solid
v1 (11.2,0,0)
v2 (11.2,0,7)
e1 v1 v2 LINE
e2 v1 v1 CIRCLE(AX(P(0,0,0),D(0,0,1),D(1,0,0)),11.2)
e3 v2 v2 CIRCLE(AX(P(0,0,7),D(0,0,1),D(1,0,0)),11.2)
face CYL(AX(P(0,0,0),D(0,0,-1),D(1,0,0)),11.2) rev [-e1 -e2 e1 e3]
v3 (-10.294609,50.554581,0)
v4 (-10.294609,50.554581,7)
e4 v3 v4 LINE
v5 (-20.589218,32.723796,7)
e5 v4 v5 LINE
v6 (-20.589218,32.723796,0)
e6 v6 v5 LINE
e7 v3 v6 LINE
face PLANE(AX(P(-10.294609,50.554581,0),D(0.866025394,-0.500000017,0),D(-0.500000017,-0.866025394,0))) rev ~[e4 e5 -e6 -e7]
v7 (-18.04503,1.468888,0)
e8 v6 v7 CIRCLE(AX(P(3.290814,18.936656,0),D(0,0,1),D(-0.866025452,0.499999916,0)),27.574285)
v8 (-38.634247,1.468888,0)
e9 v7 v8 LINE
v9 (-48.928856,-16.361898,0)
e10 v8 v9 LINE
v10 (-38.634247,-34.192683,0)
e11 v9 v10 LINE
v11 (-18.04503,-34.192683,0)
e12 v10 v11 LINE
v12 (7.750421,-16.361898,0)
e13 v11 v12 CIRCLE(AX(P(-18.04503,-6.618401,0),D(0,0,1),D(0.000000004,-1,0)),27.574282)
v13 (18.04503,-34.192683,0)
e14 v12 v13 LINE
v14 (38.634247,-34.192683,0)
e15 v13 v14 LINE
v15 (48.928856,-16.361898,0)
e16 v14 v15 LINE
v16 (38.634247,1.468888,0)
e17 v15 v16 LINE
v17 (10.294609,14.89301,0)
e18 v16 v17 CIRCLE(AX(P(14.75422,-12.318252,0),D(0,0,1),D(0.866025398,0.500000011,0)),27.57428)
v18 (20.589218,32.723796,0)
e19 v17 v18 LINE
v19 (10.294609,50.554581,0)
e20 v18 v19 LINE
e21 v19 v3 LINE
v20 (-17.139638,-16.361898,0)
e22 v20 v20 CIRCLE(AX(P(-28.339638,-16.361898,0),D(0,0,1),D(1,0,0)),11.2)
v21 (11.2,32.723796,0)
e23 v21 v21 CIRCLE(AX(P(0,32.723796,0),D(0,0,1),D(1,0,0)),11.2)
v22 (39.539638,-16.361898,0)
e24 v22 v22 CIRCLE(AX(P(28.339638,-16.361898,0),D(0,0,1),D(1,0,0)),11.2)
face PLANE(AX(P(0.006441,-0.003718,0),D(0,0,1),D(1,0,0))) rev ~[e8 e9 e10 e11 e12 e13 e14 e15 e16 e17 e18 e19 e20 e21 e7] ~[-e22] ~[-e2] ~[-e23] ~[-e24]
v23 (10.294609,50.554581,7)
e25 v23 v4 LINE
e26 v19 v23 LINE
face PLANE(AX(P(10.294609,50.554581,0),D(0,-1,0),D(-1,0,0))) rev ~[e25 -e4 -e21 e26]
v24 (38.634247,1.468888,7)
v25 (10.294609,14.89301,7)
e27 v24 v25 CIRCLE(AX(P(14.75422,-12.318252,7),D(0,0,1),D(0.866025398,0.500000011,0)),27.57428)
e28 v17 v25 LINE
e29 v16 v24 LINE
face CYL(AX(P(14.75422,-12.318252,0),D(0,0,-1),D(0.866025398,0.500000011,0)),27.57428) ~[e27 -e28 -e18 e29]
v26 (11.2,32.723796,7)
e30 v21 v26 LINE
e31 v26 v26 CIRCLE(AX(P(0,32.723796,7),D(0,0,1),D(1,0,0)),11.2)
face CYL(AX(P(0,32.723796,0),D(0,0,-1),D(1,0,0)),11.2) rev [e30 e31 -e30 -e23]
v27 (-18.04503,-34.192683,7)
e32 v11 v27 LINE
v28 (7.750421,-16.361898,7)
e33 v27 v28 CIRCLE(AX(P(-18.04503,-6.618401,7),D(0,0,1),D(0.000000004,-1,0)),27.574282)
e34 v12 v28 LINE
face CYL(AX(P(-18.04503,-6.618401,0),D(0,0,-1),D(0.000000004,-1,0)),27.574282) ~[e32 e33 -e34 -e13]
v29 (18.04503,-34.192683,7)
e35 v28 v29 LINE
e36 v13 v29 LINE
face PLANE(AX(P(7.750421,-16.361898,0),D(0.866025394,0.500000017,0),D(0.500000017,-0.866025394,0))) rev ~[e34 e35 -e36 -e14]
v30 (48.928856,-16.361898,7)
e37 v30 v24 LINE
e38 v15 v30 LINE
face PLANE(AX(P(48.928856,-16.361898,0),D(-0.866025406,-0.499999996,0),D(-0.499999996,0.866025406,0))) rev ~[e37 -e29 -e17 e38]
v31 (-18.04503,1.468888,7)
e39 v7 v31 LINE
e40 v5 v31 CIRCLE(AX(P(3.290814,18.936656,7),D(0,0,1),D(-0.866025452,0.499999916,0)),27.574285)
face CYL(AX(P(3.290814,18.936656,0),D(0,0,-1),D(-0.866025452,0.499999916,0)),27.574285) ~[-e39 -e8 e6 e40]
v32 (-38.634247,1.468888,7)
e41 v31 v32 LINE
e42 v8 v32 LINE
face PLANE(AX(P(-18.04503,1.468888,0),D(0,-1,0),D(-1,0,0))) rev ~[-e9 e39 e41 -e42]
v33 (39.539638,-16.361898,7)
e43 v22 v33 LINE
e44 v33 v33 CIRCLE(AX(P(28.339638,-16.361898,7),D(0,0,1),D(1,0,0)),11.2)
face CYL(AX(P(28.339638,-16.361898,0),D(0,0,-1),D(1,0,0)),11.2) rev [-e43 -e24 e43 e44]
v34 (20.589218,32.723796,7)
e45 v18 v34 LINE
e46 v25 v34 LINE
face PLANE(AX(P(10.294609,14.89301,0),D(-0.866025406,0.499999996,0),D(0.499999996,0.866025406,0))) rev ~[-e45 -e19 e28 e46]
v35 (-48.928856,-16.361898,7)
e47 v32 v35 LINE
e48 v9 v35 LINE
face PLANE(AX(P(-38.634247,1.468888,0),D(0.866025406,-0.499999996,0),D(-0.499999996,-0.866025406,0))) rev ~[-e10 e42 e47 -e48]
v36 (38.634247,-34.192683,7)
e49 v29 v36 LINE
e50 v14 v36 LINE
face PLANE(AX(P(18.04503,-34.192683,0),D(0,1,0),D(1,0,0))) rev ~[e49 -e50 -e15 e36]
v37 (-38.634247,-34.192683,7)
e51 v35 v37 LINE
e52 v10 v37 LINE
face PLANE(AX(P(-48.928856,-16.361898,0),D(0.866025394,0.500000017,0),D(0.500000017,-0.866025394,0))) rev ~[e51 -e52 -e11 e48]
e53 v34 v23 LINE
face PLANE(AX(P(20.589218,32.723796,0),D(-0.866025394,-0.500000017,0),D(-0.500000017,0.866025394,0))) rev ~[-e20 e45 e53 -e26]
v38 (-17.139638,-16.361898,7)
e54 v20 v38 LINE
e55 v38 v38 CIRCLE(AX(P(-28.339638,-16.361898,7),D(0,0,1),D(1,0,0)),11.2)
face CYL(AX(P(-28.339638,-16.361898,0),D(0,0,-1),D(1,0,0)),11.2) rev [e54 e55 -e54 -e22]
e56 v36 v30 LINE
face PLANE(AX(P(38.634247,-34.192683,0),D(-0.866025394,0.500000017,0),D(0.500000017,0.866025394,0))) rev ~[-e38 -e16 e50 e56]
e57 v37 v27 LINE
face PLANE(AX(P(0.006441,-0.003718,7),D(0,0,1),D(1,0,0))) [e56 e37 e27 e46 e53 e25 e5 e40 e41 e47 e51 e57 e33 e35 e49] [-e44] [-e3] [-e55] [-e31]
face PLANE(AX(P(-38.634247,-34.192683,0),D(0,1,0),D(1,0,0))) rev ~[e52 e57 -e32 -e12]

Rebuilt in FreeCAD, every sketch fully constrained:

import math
import FreeCAD as App
import Part
import Sketcher

V = App.Vector
Q = App.Units.Quantity

doc = App.newDocument("Part")
params = doc.addObject("Spreadsheet::Sheet", "Params")
for row, (alias, value) in enumerate([
    ("sketch1_diameter", "22.4 mm"),
    ("pad1_length", "7 mm"),
], start=1):
    params.set(f"A{row}", alias)
    params.set(f"B{row}", "=" + value)
    params.setAlias(f"B{row}", alias)

body = doc.addObject("PartDesign::Body", "Body")

# Sketch on XY plane
sketch1 = body.newObject("Sketcher::SketchObject", "Sketch")
sketch1.AttachmentSupport = (doc.getObject("XY_Plane"), [""])
sketch1.MapMode = "FlatFace"
sketch1.addGeometry([
    Part.ArcOfCircle(Part.Circle(V(-18, -7, 0), V(0, 0, 1), 28), math.radians(-90), math.radians(-21)),  # 0
    Part.LineSegment(V(8, -16, 0), V(18, -34, 0)),  # 1
    Part.LineSegment(V(18, -34, 0), V(39, -34, 0)),  # 2
    Part.LineSegment(V(39, -34, 0), V(49, -16, 0)),  # 3
    Part.LineSegment(V(49, -16, 0), V(39, 1, 0)),  # 4
    Part.ArcOfCircle(Part.Circle(V(15, -12, 0), V(0, 0, 1), 28), math.radians(30), math.radians(99)),  # 5
    Part.LineSegment(V(10, 15, 0), V(21, 33, 0)),  # 6
    Part.LineSegment(V(21, 33, 0), V(10, 51, 0)),  # 7
    Part.LineSegment(V(10, 51, 0), V(-10, 51, 0)),  # 8
    Part.LineSegment(V(-10, 51, 0), V(-21, 33, 0)),  # 9
    Part.ArcOfCircle(Part.Circle(V(3, 19, 0), V(0, 0, 1), 28), math.radians(150), math.radians(219)),  # 10
    Part.LineSegment(V(-18, 1, 0), V(-39, 1, 0)),  # 11
    Part.LineSegment(V(-39, 1, 0), V(-49, -16, 0)),  # 12
    Part.LineSegment(V(-49, -16, 0), V(-39, -34, 0)),  # 13
    Part.LineSegment(V(-39, -34, 0), V(-18, -34, 0)),  # 14
    Part.Circle(V(-28, -16, 0), V(0, 0, 1), 11),  # 15
    Part.Circle(V(28, -16, 0), V(0, 0, 1), 11),  # 16
    Part.Circle(V(0, 0, 0), V(0, 0, 1), 11),  # 17
    Part.Circle(V(0, 33, 0), V(0, 0, 1), 11),  # 18
], False)
sketch1.addConstraint([
    Sketcher.Constraint("Coincident", 0, 2, 1, 1),
    Sketcher.Constraint("Coincident", 1, 2, 2, 1),
    Sketcher.Constraint("Coincident", 2, 2, 3, 1),
    Sketcher.Constraint("Coincident", 3, 2, 4, 1),
    Sketcher.Constraint("Tangent", 4, 2, 5, 1),
    Sketcher.Constraint("Coincident", 5, 2, 6, 1),
    Sketcher.Constraint("Coincident", 6, 2, 7, 1),
    Sketcher.Constraint("Coincident", 7, 2, 8, 1),
    Sketcher.Constraint("Coincident", 8, 2, 9, 1),
    Sketcher.Constraint("Tangent", 9, 2, 10, 1),
    Sketcher.Constraint("Coincident", 10, 2, 11, 1),
    Sketcher.Constraint("Coincident", 11, 2, 12, 1),
    Sketcher.Constraint("Coincident", 12, 2, 13, 1),
    Sketcher.Constraint("Coincident", 13, 2, 14, 1),
    Sketcher.Constraint("Tangent", 14, 2, 0, 1),
    Sketcher.Constraint("Horizontal", 2),
    Sketcher.Constraint("Horizontal", 8),
    Sketcher.Constraint("Horizontal", 11),
    Sketcher.Constraint("Horizontal", 14),
    Sketcher.Constraint("Coincident", 17, 3, -1, 1),
    Sketcher.Constraint("Equal", 0, 5),
    Sketcher.Constraint("Equal", 15, 16),
    Sketcher.Constraint("Equal", 16, 17),
    Sketcher.Constraint("Equal", 17, 18),
    Sketcher.Constraint("Symmetric", 15, 3, 16, 3, -2),
    Sketcher.Constraint("Symmetric", 6, 2, 9, 2, -2),
    Sketcher.Constraint("Symmetric", 4, 2, 11, 2, -2),
    Sketcher.Constraint("Symmetric", 3, 2, 12, 2, -2),
    Sketcher.Constraint("Symmetric", 2, 2, 13, 2, -2),
    Sketcher.Constraint("PointOnObject", 18, 3, -2),
    Sketcher.Constraint("Parallel", 1, 4),
    Sketcher.Constraint("Parallel", 3, 6),
    Sketcher.Constraint("Parallel", 4, 7),
    Sketcher.Constraint("Parallel", 6, 9),
    Sketcher.Constraint("Parallel", 9, 12),
    Sketcher.Constraint("Horizontal", 16, 3, 0, 2),
    Sketcher.Constraint("Horizontal", 0, 2, 3, 2),
    Sketcher.Constraint("Horizontal", 18, 3, 6, 2),
    Sketcher.Constraint("Vertical", 2, 2, 4, 2),
    Sketcher.Constraint("Vertical", 5, 2, 7, 2),
    Sketcher.Constraint("Vertical", 0, 3, 10, 2),
    Sketcher.Constraint("Equal", 2, 8),
    Sketcher.Constraint("Equal", 8, 11),
    Sketcher.Constraint("Equal", 4, 6),
    Sketcher.Constraint("Diameter", 15, Q("22.4 mm")),
    Sketcher.Constraint("Angle", 1, Q("-59.999999 deg")),
    Sketcher.Constraint("Radius", 5, Q("27.57428 mm")),
    Sketcher.Constraint("Radius", 10, Q("27.574285 mm")),
    Sketcher.Constraint("DistanceY", 0, 3, -1, 1, Q("6.618401 mm")),
    Sketcher.Constraint("DistanceY", 15, 3, -1, 1, Q("16.361898 mm")),
    Sketcher.Constraint("DistanceX", 15, 3, -1, 1, Q("28.339638 mm")),
])
sketch1.setExpression("Constraints[44]", "Params.sketch1_diameter")
pad1 = body.newObject("PartDesign::Pad", "Pad")
pad1.Profile = sketch1
pad1.setExpression("Length", "Params.pad1_length")

doc.recompute()
